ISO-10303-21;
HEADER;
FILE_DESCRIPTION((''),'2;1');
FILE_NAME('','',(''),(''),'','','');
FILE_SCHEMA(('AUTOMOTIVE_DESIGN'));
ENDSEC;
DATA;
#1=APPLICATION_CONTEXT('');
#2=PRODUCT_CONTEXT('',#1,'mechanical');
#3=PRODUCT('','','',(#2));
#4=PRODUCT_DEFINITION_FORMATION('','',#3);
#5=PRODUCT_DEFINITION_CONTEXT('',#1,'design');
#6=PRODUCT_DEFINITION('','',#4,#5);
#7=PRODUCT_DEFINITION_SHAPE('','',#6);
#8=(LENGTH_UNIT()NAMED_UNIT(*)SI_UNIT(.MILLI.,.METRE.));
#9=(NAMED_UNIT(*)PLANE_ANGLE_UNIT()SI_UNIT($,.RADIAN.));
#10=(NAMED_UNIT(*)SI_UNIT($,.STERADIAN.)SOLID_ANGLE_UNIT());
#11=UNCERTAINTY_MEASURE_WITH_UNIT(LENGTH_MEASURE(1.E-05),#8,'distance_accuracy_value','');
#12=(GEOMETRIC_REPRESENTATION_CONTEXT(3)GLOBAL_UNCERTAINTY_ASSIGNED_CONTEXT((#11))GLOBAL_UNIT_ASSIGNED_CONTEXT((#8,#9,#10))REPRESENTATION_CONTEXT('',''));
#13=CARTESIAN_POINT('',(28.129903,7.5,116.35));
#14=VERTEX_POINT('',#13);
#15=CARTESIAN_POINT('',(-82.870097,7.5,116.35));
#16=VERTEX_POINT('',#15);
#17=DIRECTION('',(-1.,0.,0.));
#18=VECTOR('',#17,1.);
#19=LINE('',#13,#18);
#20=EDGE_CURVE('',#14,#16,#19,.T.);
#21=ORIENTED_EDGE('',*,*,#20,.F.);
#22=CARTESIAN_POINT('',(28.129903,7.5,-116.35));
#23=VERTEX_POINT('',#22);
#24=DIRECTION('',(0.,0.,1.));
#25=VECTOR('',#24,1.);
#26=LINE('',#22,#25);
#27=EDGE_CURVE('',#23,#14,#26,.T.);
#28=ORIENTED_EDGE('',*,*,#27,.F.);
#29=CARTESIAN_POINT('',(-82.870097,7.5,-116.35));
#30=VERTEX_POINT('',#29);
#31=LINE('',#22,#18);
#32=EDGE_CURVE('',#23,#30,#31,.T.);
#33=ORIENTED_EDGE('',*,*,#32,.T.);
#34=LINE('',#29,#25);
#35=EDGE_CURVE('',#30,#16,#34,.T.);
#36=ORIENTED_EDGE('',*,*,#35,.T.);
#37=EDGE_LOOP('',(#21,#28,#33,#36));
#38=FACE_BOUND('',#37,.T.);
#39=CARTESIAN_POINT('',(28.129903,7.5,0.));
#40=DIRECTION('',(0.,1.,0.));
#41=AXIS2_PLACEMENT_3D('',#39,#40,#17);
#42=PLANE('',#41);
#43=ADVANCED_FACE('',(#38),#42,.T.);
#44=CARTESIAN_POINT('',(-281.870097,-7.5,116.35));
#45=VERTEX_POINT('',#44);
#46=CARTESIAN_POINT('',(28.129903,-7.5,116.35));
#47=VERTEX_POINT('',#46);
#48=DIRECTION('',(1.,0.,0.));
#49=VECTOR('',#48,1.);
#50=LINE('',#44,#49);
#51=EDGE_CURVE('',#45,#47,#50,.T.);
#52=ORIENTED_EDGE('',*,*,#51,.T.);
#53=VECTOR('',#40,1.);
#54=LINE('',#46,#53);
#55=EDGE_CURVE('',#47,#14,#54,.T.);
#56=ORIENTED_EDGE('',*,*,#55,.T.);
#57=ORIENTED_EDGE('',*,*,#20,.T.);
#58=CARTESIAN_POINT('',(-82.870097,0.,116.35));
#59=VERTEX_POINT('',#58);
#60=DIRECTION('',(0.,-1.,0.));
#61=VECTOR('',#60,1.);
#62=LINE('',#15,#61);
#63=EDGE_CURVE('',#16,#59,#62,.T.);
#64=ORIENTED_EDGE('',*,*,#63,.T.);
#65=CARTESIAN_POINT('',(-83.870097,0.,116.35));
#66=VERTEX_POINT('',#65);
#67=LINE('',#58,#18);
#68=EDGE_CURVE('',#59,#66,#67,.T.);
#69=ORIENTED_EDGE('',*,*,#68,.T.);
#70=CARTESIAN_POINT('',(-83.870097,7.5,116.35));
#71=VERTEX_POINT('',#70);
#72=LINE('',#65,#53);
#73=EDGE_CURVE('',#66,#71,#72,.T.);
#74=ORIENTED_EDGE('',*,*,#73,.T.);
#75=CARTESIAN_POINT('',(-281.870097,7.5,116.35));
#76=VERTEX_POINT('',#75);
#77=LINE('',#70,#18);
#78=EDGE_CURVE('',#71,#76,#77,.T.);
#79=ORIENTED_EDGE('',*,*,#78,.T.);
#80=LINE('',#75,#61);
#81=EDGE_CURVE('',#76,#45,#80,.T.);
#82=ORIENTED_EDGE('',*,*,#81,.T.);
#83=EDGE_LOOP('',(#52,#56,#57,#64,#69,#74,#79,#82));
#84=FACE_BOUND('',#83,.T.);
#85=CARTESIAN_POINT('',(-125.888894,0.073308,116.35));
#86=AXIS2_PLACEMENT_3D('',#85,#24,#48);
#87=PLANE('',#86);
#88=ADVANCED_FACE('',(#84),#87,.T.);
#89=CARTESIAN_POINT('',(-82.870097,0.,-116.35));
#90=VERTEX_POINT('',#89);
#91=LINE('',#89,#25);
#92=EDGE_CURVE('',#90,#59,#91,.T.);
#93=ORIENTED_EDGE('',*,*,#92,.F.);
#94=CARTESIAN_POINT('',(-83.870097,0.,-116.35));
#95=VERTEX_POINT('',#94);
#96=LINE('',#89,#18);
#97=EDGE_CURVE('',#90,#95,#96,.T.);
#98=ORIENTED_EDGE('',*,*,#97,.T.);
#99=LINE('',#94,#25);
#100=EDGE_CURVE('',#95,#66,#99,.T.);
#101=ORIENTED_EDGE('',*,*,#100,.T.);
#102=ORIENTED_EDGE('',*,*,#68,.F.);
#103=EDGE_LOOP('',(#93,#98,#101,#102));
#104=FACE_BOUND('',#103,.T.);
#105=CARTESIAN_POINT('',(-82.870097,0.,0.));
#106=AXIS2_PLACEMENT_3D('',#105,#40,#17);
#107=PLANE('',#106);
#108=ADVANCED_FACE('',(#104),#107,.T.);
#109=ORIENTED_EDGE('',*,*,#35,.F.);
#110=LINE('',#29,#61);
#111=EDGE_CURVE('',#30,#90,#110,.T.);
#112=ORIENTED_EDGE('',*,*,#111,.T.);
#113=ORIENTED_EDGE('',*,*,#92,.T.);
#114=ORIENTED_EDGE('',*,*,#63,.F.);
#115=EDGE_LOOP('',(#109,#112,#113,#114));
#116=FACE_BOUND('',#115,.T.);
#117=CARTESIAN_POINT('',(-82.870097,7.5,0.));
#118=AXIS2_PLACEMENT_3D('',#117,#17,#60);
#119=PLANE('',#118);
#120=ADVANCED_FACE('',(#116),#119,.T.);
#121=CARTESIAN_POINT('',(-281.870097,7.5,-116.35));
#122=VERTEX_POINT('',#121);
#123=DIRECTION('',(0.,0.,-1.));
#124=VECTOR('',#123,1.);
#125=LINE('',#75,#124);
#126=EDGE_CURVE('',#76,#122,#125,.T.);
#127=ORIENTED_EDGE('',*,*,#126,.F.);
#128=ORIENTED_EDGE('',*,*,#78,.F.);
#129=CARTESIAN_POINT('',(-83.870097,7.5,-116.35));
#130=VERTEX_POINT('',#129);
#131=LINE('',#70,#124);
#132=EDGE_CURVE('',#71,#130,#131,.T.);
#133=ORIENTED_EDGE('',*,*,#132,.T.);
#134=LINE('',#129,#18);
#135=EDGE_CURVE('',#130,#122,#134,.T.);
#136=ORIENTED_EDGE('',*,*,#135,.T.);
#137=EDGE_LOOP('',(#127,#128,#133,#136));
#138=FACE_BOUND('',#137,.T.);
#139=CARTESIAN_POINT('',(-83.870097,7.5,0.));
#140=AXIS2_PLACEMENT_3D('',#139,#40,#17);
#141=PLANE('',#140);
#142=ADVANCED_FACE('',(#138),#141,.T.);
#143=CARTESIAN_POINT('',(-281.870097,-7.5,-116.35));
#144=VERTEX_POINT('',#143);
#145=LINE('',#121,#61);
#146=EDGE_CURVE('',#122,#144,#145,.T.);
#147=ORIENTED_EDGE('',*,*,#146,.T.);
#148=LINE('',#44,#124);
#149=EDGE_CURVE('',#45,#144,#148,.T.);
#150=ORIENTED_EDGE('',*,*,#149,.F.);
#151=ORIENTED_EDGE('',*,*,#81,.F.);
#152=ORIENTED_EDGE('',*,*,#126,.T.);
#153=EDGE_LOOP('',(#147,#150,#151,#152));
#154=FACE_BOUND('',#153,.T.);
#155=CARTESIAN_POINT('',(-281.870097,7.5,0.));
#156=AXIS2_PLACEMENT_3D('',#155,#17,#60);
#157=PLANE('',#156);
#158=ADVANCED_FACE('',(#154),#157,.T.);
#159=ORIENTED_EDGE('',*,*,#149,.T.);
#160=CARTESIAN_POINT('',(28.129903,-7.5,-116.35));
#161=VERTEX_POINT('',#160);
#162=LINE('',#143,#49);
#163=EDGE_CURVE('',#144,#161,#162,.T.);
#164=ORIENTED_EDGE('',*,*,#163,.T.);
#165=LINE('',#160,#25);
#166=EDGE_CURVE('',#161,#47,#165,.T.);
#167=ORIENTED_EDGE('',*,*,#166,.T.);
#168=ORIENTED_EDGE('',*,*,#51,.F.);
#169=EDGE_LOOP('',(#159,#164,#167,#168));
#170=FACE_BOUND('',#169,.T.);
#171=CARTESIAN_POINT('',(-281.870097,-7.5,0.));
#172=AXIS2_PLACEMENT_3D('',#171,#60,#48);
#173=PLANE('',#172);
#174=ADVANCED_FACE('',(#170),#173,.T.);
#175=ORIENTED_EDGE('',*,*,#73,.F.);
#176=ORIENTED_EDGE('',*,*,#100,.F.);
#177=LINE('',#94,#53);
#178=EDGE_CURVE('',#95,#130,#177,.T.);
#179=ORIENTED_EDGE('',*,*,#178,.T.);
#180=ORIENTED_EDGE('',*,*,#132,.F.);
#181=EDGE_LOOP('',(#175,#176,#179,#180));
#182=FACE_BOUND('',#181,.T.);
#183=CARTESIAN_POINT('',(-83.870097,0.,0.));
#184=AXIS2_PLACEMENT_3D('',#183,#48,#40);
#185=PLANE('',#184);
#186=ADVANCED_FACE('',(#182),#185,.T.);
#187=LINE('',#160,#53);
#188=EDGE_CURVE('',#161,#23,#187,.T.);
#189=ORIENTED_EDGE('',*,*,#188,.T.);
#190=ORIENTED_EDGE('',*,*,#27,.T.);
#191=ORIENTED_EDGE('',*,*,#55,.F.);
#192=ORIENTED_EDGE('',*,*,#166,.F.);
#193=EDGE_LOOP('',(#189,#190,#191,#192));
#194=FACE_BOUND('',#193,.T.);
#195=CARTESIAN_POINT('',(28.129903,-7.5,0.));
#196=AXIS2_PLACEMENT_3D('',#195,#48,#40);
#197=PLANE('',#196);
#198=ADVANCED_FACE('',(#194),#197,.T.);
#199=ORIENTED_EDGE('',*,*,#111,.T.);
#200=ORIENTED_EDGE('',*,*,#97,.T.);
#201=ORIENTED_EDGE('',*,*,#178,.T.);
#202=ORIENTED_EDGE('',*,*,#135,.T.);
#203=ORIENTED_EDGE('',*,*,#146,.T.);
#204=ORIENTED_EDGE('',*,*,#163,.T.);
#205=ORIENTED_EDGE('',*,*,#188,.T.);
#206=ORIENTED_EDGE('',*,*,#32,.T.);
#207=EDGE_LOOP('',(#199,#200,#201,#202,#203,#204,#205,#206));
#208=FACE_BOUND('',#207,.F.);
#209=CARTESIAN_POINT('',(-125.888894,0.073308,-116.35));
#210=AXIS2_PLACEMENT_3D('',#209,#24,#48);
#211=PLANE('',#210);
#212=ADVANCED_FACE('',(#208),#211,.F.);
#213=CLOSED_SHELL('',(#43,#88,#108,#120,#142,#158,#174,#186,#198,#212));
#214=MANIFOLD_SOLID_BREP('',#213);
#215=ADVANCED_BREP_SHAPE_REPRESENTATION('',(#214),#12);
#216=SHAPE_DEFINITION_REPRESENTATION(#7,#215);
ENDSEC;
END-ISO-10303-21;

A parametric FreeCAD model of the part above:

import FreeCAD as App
import Part
import Sketcher

V = App.Vector


def add_polygon(sketch, points):
    """Adds a closed chain of lines whose ends are joined by coincident constraints."""
    first, n = sketch.GeometryCount, len(points)
    for a, b in zip(points, points[1:] + points[:1]):
        sketch.addGeometry(Part.LineSegment(App.Vector(*a, 0), App.Vector(*b, 0)), False)
    for i in range(n):
        sketch.addConstraint(Sketcher.Constraint("Coincident", first + i, 2, first + (i + 1) % n, 1))

doc = App.newDocument("Part")
body = doc.addObject("PartDesign::Body", "Body")

# Sketch on XY plane
sketch1 = body.newObject("Sketcher::SketchObject", "Sketch")
sketch1.AttachmentSupport = (doc.getObject("XY_Plane"), [""])
sketch1.MapMode = "FlatFace"
add_polygon(sketch1, [(-281.9, -7.5), (28.1, -7.5), (28.1, 7.5), (-82.9, 7.5), (-82.9, 0), (-83.9, 0), (-83.9, 7.5), (-281.9, 7.5)])  # lines 0-7
sketch1.addConstraint(Sketcher.Constraint("Horizontal", 0))
sketch1.addConstraint(Sketcher.Constraint("Vertical", 1))
sketch1.addConstraint(Sketcher.Constraint("Horizontal", 2))
sketch1.addConstraint(Sketcher.Constraint("Vertical", 3))
sketch1.addConstraint(Sketcher.Constraint("Horizontal", 4))
sketch1.addConstraint(Sketcher.Constraint("Vertical", 5))
sketch1.addConstraint(Sketcher.Constraint("Horizontal", 6))
sketch1.addConstraint(Sketcher.Constraint("Vertical", 7))
sketch1.addConstraint(Sketcher.Constraint("PointOnObject", 3, 2, -1))
sketch1.addConstraint(Sketcher.Constraint("Horizontal", 2, 2, 5, 2))
sketch1.addConstraint(Sketcher.Constraint("DistanceX", 0, 1, 0, 2, 310.0))
sketch1.addConstraint(Sketcher.Constraint("DistanceX", 2, 2, 2, 1, 111.0))
sketch1.addConstraint(Sketcher.Constraint("DistanceX", 4, 2, 4, 1, 1.0))
sketch1.addConstraint(Sketcher.Constraint("DistanceY", 1, 1, 1, 2, 15.0))
sketch1.addConstraint(Sketcher.Constraint("DistanceY", 3, 2, 3, 1, 7.5))
sketch1.addConstraint(Sketcher.Constraint("DistanceX", -1, 1, 0, 2, 28.129903))
pad1 = body.newObject("PartDesign::Pad", "Pad")
pad1.Profile = sketch1
pad1.Length = 232.7
pad1.Midplane = True

doc.recompute()
